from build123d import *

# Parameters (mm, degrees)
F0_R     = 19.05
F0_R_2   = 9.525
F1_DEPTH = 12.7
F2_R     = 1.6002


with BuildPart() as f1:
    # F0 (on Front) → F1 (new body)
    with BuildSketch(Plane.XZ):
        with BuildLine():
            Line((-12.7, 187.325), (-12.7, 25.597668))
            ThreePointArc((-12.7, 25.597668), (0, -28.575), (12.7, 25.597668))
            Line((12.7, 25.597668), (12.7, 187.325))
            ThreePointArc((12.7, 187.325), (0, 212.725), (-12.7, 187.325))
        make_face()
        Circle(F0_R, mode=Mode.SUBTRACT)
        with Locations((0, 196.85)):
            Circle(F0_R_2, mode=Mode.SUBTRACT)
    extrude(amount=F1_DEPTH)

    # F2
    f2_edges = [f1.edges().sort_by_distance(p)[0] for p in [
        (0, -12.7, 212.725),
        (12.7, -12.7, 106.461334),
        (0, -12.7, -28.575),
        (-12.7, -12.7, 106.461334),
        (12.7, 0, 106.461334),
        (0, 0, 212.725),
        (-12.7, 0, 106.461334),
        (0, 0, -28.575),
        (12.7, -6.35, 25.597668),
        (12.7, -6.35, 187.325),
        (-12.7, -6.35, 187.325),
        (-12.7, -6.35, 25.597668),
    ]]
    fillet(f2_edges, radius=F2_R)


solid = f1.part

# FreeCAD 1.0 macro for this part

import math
import FreeCAD as App
import Part
import Sketcher
Q = App.Units.Quantity


def edges_at(feature, points):
    """Names of the edges that pass closest to the given points."""
    edges = feature.Shape.Edges
    near = lambda p: min(range(len(edges)), key=lambda i: edges[i].distToShape(Part.Vertex(*p))[0])
    return sorted({f"Edge{near(p) + 1}" for p in points})

doc = App.newDocument("Part")
body = doc.addObject("PartDesign::Body", "Body")

# Sketch on XZ plane
sketch1 = doc.addObject("Sketcher::SketchObject", "Sketch")
body.addObject(sketch1)
sketch1.AttachmentSupport = (doc.XZ_Plane, [""])
sketch1.MapMode = "FlatFace"
sketch1.addGeometry([
    Part.LineSegment(App.Vector(-12.7, 187.325, 0), App.Vector(-12.7, 25.597668, 0)),  # 0
    Part.ArcOfCircle(Part.Circle(App.Vector(0, 0, 0), App.Vector(0, 0, 1), 28.575), math.radians(116.3878), math.radians(423.6122)),  # 1
    Part.LineSegment(App.Vector(12.7, 25.597668, 0), App.Vector(12.7, 187.325, 0)),  # 2
    Part.ArcOfCircle(Part.Circle(App.Vector(0, 196.85, 0), App.Vector(0, 0, 1), 15.875), math.radians(-36.869898), math.radians(216.869898)),  # 3
    Part.Circle(App.Vector(0, 0, 0), App.Vector(0, 0, 1), 19.05),  # 4
    Part.Circle(App.Vector(0, 196.85, 0), App.Vector(0, 0, 1), 9.525),  # 5
], False)
sketch1.addConstraint([
    Sketcher.Constraint("Coincident", 0, 2, 1, 1),
    Sketcher.Constraint("Coincident", 1, 2, 2, 1),
    Sketcher.Constraint("Coincident", 2, 2, 3, 1),
    Sketcher.Constraint("Coincident", 3, 2, 0, 1),
    Sketcher.Constraint("Vertical", 0),
    Sketcher.Constraint("Vertical", 2),
    Sketcher.Constraint("Coincident", 1, 3, -1, 1),
    Sketcher.Constraint("Coincident", 4, 3, -1, 1),
    Sketcher.Constraint("Coincident", 5, 3, 3, 3),
    Sketcher.Constraint("Symmetric", 2, 2, 3, 2, -2),
    Sketcher.Constraint("Diameter", 4, Q("1.5 in")),
    Sketcher.Constraint("Diameter", 5, Q("0.75 in")),
    Sketcher.Constraint("Radius", 1, Q("1.125 in")),
    Sketcher.Constraint("Radius", 3, Q("0.625 in")),
    Sketcher.Constraint("DistanceX", 0, 2, 1, 2, Q("1 in")),
    Sketcher.Constraint("DistanceY", -1, 1, 3, 3, Q("7.75 in")),
])
pad1 = doc.addObject("PartDesign::Pad", "Pad")
body.addObject(pad1)
pad1.Profile = sketch1
pad1.Length = Q("0.5 in")
doc.recompute()

fillet = doc.addObject("PartDesign::Fillet", "Fillet")
body.addObject(fillet)
fillet.Base = (pad1, edges_at(pad1, [
    (0, -12.7, 212.725),
    (12.7, -12.7, 106.461),
    (0, -12.7, -28.575),
    (-12.7, -12.7, 106.461),
    (12.7, 0, 106.461),
    (0, 0, 212.725),
    (-12.7, 0, 106.461),
    (0, 0, -28.575),
    (12.7, -6.35, 25.598),
    (12.7, -6.35, 187.325),
    (-12.7, -6.35, 187.325),
    (-12.7, -6.35, 25.598),
]))
fillet.Radius = Q("0.063 in")

doc.recompute()
